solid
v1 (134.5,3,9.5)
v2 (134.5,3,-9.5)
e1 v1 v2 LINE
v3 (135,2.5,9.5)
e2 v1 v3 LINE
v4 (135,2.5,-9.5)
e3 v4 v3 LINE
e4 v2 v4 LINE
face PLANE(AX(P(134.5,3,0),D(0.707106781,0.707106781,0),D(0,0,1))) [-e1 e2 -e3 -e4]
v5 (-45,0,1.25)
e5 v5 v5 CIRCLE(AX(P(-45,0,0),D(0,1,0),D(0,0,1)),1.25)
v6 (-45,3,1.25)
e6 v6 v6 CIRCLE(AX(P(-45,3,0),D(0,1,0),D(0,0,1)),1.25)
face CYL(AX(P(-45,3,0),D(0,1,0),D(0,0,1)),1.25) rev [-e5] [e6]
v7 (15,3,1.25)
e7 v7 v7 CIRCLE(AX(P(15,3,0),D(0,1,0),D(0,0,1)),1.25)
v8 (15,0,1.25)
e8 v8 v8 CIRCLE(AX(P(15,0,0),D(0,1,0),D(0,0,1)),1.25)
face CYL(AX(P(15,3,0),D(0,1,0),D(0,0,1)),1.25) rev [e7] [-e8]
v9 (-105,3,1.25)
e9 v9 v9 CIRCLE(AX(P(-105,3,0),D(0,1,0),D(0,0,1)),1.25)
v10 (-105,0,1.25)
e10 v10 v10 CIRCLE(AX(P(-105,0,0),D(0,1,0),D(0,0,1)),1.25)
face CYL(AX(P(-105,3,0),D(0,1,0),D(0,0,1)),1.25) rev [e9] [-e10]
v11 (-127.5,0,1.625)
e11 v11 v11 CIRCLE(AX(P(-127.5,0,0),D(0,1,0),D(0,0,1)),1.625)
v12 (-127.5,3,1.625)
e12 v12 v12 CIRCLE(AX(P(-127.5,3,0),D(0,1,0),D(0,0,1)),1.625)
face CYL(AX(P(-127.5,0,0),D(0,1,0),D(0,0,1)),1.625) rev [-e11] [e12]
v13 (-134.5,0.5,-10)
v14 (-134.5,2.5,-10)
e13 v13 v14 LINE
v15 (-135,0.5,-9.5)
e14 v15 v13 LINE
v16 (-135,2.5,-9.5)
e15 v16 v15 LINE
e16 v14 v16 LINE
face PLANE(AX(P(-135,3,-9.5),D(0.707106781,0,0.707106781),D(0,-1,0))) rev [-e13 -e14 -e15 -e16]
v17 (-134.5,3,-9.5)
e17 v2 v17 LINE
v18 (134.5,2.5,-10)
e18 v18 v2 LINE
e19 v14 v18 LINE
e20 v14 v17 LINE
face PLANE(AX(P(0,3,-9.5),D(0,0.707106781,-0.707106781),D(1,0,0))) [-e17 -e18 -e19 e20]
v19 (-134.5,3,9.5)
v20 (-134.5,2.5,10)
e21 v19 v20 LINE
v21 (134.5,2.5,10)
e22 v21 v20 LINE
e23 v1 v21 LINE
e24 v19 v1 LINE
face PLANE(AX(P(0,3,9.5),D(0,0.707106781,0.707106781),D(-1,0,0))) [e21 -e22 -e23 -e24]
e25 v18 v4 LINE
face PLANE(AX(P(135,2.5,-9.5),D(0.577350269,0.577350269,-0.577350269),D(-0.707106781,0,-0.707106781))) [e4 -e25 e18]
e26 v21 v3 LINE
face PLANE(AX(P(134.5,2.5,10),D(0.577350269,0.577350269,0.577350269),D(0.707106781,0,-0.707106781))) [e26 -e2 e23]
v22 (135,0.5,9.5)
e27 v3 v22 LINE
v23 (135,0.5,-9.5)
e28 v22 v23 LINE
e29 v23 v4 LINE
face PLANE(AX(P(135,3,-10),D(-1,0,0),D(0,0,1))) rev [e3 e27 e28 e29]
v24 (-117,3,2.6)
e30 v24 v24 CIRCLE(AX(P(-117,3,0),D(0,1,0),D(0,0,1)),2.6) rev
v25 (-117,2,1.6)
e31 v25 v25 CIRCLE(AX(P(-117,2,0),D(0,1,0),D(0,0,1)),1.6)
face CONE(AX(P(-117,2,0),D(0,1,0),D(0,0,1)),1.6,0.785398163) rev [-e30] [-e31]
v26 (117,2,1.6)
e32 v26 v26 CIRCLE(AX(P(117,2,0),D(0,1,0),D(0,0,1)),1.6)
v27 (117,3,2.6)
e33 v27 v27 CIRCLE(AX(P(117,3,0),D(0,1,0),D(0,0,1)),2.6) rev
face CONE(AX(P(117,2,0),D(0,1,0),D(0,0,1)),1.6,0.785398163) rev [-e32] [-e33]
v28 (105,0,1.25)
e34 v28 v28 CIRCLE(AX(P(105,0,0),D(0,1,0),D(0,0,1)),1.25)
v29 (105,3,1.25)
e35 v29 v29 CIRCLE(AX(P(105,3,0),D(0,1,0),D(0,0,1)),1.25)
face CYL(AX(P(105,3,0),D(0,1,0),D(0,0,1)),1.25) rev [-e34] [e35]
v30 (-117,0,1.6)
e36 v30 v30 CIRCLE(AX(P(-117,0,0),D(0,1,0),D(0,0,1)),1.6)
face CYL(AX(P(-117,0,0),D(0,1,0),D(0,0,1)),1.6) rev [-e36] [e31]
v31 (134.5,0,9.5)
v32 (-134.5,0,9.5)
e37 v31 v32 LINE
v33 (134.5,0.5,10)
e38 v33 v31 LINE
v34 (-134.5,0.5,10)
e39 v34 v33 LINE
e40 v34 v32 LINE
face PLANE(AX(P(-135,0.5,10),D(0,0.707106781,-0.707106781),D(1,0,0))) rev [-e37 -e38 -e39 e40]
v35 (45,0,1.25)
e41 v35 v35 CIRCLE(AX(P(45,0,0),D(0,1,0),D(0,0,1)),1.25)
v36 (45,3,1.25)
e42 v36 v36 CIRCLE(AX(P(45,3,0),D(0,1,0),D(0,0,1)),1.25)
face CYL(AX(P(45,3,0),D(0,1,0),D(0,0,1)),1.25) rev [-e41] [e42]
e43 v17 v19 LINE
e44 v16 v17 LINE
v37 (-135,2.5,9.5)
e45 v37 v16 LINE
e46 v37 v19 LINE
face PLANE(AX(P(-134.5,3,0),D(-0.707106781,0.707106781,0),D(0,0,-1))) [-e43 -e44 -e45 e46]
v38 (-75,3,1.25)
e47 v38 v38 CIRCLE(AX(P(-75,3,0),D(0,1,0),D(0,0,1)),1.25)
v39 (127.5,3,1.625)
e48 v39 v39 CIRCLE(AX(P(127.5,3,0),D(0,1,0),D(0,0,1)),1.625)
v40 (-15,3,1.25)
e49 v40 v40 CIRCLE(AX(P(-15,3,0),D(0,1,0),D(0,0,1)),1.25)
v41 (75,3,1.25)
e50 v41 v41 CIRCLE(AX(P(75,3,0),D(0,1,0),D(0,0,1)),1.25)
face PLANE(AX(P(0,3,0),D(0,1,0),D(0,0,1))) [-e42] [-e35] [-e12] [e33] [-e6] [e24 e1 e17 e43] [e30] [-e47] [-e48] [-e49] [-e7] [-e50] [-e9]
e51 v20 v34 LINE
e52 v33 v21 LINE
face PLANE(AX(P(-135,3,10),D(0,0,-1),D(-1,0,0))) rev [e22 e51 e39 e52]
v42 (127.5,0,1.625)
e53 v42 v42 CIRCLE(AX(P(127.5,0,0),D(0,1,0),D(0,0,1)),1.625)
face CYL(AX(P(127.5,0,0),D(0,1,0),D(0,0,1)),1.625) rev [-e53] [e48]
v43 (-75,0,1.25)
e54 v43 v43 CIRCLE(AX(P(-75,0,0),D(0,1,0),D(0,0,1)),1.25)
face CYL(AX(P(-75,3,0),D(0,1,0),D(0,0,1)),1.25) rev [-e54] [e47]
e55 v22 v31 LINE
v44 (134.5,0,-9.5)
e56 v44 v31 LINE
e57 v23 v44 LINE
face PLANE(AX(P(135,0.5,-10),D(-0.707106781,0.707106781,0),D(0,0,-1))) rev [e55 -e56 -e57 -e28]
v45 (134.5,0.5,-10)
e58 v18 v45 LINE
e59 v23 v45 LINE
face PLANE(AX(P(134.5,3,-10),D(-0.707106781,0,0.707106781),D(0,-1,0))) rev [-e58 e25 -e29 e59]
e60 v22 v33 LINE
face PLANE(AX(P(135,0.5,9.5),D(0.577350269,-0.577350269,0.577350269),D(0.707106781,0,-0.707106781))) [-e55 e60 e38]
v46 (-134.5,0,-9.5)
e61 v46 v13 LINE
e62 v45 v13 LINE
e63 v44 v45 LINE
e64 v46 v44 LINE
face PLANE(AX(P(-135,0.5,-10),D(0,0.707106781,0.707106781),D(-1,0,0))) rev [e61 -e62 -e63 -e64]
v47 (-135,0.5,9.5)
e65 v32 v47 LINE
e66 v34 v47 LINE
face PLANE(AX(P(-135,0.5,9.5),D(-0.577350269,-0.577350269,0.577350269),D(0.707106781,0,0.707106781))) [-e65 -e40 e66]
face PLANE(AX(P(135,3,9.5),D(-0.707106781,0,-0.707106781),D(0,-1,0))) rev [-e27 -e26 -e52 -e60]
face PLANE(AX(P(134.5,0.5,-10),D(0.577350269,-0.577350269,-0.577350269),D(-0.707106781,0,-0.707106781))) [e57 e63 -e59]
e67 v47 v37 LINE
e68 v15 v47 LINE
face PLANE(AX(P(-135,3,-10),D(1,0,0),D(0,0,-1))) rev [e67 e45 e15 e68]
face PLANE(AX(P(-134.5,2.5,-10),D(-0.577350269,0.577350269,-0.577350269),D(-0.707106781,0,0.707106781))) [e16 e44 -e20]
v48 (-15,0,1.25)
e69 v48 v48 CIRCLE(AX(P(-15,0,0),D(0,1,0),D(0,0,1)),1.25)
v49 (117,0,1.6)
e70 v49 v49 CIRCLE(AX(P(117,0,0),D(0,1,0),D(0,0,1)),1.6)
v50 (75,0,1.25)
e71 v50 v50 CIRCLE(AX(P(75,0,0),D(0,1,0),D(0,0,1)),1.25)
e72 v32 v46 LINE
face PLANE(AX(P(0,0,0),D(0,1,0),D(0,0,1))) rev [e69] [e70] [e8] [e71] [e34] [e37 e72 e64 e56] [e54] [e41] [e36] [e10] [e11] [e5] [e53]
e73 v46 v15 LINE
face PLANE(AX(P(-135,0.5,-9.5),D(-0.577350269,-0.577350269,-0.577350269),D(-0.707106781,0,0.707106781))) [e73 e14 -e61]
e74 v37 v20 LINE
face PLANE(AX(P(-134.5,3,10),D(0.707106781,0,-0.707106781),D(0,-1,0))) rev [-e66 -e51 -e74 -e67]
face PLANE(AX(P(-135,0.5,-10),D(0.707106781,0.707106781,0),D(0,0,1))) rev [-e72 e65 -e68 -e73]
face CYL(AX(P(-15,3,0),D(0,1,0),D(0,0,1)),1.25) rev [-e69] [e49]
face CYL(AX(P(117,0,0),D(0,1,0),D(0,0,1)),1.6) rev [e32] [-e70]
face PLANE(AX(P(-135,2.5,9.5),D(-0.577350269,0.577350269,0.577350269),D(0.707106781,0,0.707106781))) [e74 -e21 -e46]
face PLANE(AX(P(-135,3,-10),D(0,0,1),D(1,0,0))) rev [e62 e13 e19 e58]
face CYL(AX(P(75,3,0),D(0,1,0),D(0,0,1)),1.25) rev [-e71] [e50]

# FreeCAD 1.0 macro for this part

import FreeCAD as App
import Part
import Sketcher
from FreeCAD import Vector
Q = App.Units.Quantity


def edges_at(feature, points):
    """Names of the edges that pass closest to the given points."""
    edges = feature.Shape.Edges
    near = lambda p: min(range(len(edges)), key=lambda i: edges[i].distToShape(Part.Vertex(*p))[0])
    return sorted({f"Edge{near(p) + 1}" for p in points})

doc = App.newDocument("Part")
body = doc.addObject("PartDesign::Body", "Body")

# Sketch on XZ plane
sketch1 = doc.addObject("Sketcher::SketchObject", "Sketch")
body.addObject(sketch1)
sketch1.AttachmentSupport = (doc.XZ_Plane, [""])
sketch1.MapMode = "FlatFace"
sketch1.addGeometry(Part.LineSegment(Vector(-135, -10, 0), Vector(-135, 10, 0)), False)
sketch1.addGeometry(Part.LineSegment(Vector(-135, 10, 0), Vector(135, 10, 0)), False)
sketch1.addGeometry(Part.LineSegment(Vector(135, 10, 0), Vector(135, -10, 0)), False)
sketch1.addGeometry(Part.LineSegment(Vector(135, -10, 0), Vector(-135, -10, 0)), False)
sketch1.addConstraint(Sketcher.Constraint("Coincident", 0, 2, 1, 1))
sketch1.addConstraint(Sketcher.Constraint("Coincident", 1, 2, 2, 1))
sketch1.addConstraint(Sketcher.Constraint("Coincident", 2, 2, 3, 1))
sketch1.addConstraint(Sketcher.Constraint("Coincident", 3, 2, 0, 1))
sketch1.addConstraint(Sketcher.Constraint("Vertical", 0))
sketch1.addConstraint(Sketcher.Constraint("Horizontal", 1))
sketch1.addConstraint(Sketcher.Constraint("Vertical", 2))
sketch1.addConstraint(Sketcher.Constraint("Horizontal", 3))
sketch1.addConstraint(Sketcher.Constraint("Symmetric", 0, 2, 2, 2, -1, 1))
sketch1.addConstraint(Sketcher.Constraint("DistanceX", 1, 1, 1, 2, Q("270 mm")))
sketch1.addConstraint(Sketcher.Constraint("DistanceY", 0, 1, 0, 2, Q("20 mm")))
pad1 = doc.addObject("PartDesign::Pad", "Pad")
body.addObject(pad1)
pad1.Profile = sketch1
pad1.Length = 3
pad1.Reversed = True

# Sketch on XZ plane
sketch2 = doc.addObject("Sketcher::SketchObject", "Sketch001")
body.addObject(sketch2)
sketch2.AttachmentSupport = (doc.XZ_Plane, [""])
sketch2.MapMode = "FlatFace"
sketch2.AttachmentOffset = App.Placement(Vector(0, 0, -3), App.Rotation())
sketch2.addGeometry(Part.Circle(Vector(-105, 0, 0), Vector(0, 0, 1), 1.2), False)
sketch2.addGeometry(Part.Circle(Vector(-75, 0, 0), Vector(0, 0, 1), 1.2), False)
sketch2.addGeometry(Part.Circle(Vector(-45, 0, 0), Vector(0, 0, 1), 1.2), False)
sketch2.addGeometry(Part.Circle(Vector(-15, 0, 0), Vector(0, 0, 1), 1.2), False)
sketch2.addGeometry(Part.Circle(Vector(15, 0, 0), Vector(0, 0, 1), 1.2), False)
sketch2.addGeometry(Part.Circle(Vector(45, 0, 0), Vector(0, 0, 1), 1.2), False)
sketch2.addGeometry(Part.Circle(Vector(75, 0, 0), Vector(0, 0, 1), 1.2), False)
sketch2.addGeometry(Part.Circle(Vector(105, 0, 0), Vector(0, 0, 1), 1.2), False)
sketch2.addConstraint(Sketcher.Constraint("Equal", 0, 1))
sketch2.addConstraint(Sketcher.Constraint("Equal", 1, 2))
sketch2.addConstraint(Sketcher.Constraint("Equal", 2, 3))
sketch2.addConstraint(Sketcher.Constraint("Equal", 3, 4))
sketch2.addConstraint(Sketcher.Constraint("Equal", 4, 5))
sketch2.addConstraint(Sketcher.Constraint("Equal", 5, 6))
sketch2.addConstraint(Sketcher.Constraint("Equal", 6, 7))
sketch2.addConstraint(Sketcher.Constraint("Symmetric", 3, 3, 4, 3, -1, 1))
sketch2.addConstraint(Sketcher.Constraint("Symmetric", 2, 3, 5, 3, -1, 1))
sketch2.addConstraint(Sketcher.Constraint("Symmetric", 1, 3, 6, 3, -1, 1))
sketch2.addConstraint(Sketcher.Constraint("Symmetric", 0, 3, 7, 3, -1, 1))
sketch2.addConstraint(Sketcher.Constraint("PointOnObject", 0, 3, -1))
sketch2.addConstraint(Sketcher.Constraint("PointOnObject", 1, 3, -1))
sketch2.addConstraint(Sketcher.Constraint("PointOnObject", 2, 3, -1))
sketch2.addConstraint(Sketcher.Constraint("PointOnObject", 3, 3, -1))
sketch2.addConstraint(Sketcher.Constraint("Diameter", 0, Q("2.5 mm")))
sketch2.addConstraint(Sketcher.Constraint("DistanceX", 0, 3, -1, 1, Q("105 mm")))
sketch2.addConstraint(Sketcher.Constraint("DistanceX", 1, 3, -1, 1, Q("75 mm")))
sketch2.addConstraint(Sketcher.Constraint("DistanceX", 2, 3, -1, 1, Q("45 mm")))
sketch2.addConstraint(Sketcher.Constraint("DistanceX", 3, 3, -1, 1, Q("15 mm")))
doc.recompute()
hole = doc.addObject("PartDesign::Hole", "Hole")
body.addObject(hole)
hole.Profile = sketch2
hole.ThreadType = "None"
hole.Diameter = 2.5
hole.DepthType = "ThroughAll"
hole.Reversed = True

# Sketch on XZ plane
sketch3 = doc.addObject("Sketcher::SketchObject", "Sketch002")
body.addObject(sketch3)
sketch3.AttachmentSupport = (doc.XZ_Plane, [""])
sketch3.MapMode = "FlatFace"
sketch3.AttachmentOffset = App.Placement(Vector(0, 0, -3), App.Rotation())
sketch3.addGeometry(Part.Circle(Vector(-127.5, 0, 0), Vector(0, 0, 1), 1.6), False)
sketch3.addGeometry(Part.Circle(Vector(127.5, 0, 0), Vector(0, 0, 1), 1.6), False)
sketch3.addConstraint(Sketcher.Constraint("Equal", 0, 1))
sketch3.addConstraint(Sketcher.Constraint("Symmetric", 0, 3, 1, 3, -1, 1))
sketch3.addConstraint(Sketcher.Constraint("PointOnObject", 0, 3, -1))
sketch3.addConstraint(Sketcher.Constraint("Diameter", 0, Q("3.25 mm")))
sketch3.addConstraint(Sketcher.Constraint("DistanceX", 0, 3, 1, 3, Q("255 mm")))
pocket1 = doc.addObject("PartDesign::Pocket", "Pocket")
body.addObject(pocket1)
pocket1.Profile = sketch3
pocket1.Type = "ThroughAll"
pocket1.Reversed = True
doc.recompute()

chamfer = doc.addObject("PartDesign::Chamfer", "Chamfer")
body.addObject(chamfer)
chamfer.Base = (pocket1, edges_at(pocket1, [
    (-135, 3, 0),
    (0, 3, 10),
    (135, 3, 0),
    (0, 0, 10),
    (-135, 0, 0),
    (0, 0, -10),
    (135, 0, 0),
    (135, 1.5, 10),
    (-135, 1.5, 10),
    (-135, 1.5, -10),
    (135, 1.5, -10),
    (0, 3, -10),
]))
chamfer.Size = 0.5

# Sketch on XZ plane
sketch4 = doc.addObject("Sketcher::SketchObject", "Sketch003")
body.addObject(sketch4)
sketch4.AttachmentSupport = (doc.XZ_Plane, [""])
sketch4.MapMode = "FlatFace"
sketch4.AttachmentOffset = App.Placement(Vector(0, 0, -3), App.Rotation())
sketch4.addGeometry(Part.Circle(Vector(-117, 0, 0), Vector(0, 0, 1), 1.6), False)
sketch4.addGeometry(Part.Circle(Vector(117, 0, 0), Vector(0, 0, 1), 1.6), False)
sketch4.addConstraint(Sketcher.Constraint("Equal", 0, 1))
sketch4.addConstraint(Sketcher.Constraint("Symmetric", 0, 3, 1, 3, -1, 1))
sketch4.addConstraint(Sketcher.Constraint("PointOnObject", 0, 3, -1))
sketch4.addConstraint(Sketcher.Constraint("Diameter", 0, Q("3.2 mm")))
sketch4.addConstraint(Sketcher.Constraint("DistanceX", 0, 3, -1, 1, Q("117 mm")))
pocket2 = doc.addObject("PartDesign::Pocket", "Pocket001")
body.addObject(pocket2)
pocket2.Profile = sketch4
pocket2.Type = "ThroughAll"
pocket2.Reversed = True
doc.recompute()

chamfer2 = doc.addObject("PartDesign::Chamfer", "Chamfer001")
body.addObject(chamfer2)
chamfer2.Base = (pocket2, edges_at(pocket2, [(-117, 3, -1.6), (117, 3, -1.6)]))
chamfer2.Size = 1

doc.recompute()
